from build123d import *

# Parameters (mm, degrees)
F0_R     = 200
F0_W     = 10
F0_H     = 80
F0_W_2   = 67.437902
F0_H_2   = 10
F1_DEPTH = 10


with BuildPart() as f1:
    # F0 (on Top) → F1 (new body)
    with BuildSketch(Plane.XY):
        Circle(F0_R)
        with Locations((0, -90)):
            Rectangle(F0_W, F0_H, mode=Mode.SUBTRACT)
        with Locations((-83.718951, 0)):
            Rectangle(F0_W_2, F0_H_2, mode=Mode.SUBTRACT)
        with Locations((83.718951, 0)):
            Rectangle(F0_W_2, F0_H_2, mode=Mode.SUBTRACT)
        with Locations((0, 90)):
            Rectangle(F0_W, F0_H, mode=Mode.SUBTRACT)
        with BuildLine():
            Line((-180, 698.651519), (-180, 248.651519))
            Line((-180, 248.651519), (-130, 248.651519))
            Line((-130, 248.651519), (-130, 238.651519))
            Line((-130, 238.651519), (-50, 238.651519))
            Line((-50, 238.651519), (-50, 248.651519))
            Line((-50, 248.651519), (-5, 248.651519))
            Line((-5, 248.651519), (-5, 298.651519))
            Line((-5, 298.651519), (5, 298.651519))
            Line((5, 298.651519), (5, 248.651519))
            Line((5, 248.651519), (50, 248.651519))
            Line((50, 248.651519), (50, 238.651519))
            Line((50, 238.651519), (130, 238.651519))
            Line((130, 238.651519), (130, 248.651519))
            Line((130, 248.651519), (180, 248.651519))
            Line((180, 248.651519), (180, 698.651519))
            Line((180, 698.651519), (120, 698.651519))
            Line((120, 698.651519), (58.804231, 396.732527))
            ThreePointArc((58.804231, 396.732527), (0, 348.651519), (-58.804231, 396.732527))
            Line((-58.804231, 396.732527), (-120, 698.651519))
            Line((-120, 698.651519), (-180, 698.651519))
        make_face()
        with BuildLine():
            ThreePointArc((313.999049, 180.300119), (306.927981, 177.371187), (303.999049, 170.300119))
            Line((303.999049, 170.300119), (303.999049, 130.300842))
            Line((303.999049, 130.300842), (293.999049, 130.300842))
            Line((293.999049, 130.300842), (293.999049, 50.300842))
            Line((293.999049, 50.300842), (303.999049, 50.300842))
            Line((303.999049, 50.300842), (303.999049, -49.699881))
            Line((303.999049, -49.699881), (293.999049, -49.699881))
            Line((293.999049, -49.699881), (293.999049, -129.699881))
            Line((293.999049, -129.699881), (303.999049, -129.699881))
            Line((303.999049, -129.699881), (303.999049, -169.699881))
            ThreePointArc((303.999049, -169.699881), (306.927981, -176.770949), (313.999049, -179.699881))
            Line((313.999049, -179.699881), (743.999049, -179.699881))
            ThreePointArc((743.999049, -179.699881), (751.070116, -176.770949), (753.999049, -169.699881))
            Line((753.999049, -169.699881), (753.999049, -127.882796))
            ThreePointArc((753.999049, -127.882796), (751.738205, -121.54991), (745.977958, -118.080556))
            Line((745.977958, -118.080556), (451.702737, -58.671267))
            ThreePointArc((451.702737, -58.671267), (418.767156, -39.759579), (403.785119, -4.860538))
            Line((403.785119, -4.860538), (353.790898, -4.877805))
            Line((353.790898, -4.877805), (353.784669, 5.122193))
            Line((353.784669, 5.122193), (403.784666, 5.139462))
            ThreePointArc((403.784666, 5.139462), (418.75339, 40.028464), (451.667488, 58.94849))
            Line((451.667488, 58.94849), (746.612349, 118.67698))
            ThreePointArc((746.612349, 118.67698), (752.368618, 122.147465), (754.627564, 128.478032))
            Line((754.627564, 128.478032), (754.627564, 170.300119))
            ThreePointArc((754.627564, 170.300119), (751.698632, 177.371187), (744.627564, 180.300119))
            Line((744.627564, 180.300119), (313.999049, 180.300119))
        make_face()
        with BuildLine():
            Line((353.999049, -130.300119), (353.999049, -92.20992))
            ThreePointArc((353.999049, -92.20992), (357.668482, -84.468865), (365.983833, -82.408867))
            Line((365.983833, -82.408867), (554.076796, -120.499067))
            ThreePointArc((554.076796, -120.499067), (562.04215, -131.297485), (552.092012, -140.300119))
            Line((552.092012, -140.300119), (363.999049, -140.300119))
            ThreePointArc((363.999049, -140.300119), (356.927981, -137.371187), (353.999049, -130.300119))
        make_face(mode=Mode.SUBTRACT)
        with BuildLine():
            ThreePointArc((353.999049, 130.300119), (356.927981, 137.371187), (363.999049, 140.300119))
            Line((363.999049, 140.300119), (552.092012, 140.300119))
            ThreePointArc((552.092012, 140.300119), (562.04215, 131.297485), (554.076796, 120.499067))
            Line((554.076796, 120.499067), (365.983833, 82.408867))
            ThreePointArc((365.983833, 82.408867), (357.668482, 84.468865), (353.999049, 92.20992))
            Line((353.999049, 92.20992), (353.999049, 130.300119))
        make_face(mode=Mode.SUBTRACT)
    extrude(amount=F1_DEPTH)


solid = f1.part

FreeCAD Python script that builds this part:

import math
import FreeCAD as App
import Part
import Sketcher

V = App.Vector
Q = App.Units.Quantity


def add_polygon(sketch, points):
    """Adds a closed chain of lines whose ends are joined by coincident constraints."""
    first, n = sketch.GeometryCount, len(points)
    for a, b in zip(points, points[1:] + points[:1]):
        sketch.addGeometry(Part.LineSegment(App.Vector(*a, 0), App.Vector(*b, 0)), False)
    for i in range(n):
        sketch.addConstraint(Sketcher.Constraint("Coincident", first + i, 2, first + (i + 1) % n, 1))

doc = App.newDocument("Part")
body = doc.addObject("PartDesign::Body", "Body")
body.AllowCompound = True

# Sketch on XY plane
sketch1 = body.newObject("Sketcher::SketchObject", "Sketch")
sketch1.AttachmentSupport = (doc.getObject("XY_Plane"), [""])
sketch1.MapMode = "FlatFace"
sketch1.addGeometry(Part.Circle(V(0, 0, 0), V(0, 0, 1), 200), False)  # 0
add_polygon(sketch1, [(5, -130), (-5, -130), (-5, -50), (5, -50)])  # lines 1-4
add_polygon(sketch1, [(-50, -5), (-117, -5), (-117, 5), (-50, 5)])  # lines 5-8
add_polygon(sketch1, [(117, -5), (50, -5), (50, 5), (117, 5)])  # lines 9-12
add_polygon(sketch1, [(5, 50), (-5, 50), (-5, 130), (5, 130)])  # lines 13-16
sketch1.addGeometry(Part.LineSegment(V(-180, 699, 0), V(-180, 249, 0)), False)  # 17
sketch1.addGeometry(Part.LineSegment(V(-180, 249, 0), V(-130, 249, 0)), False)  # 18
sketch1.addGeometry(Part.LineSegment(V(-130, 249, 0), V(-130, 239, 0)), False)  # 19
sketch1.addGeometry(Part.LineSegment(V(-130, 239, 0), V(-50, 239, 0)), False)  # 20
sketch1.addGeometry(Part.LineSegment(V(-50, 239, 0), V(-50, 249, 0)), False)  # 21
sketch1.addGeometry(Part.LineSegment(V(-50, 249, 0), V(-5, 249, 0)), False)  # 22
sketch1.addGeometry(Part.LineSegment(V(-5, 249, 0), V(-5, 299, 0)), False)  # 23
sketch1.addGeometry(Part.LineSegment(V(-5, 299, 0), V(5, 299, 0)), False)  # 24
sketch1.addGeometry(Part.LineSegment(V(5, 299, 0), V(5, 249, 0)), False)  # 25
sketch1.addGeometry(Part.LineSegment(V(5, 249, 0), V(50, 249, 0)), False)  # 26
sketch1.addGeometry(Part.LineSegment(V(50, 249, 0), V(50, 239, 0)), False)  # 27
sketch1.addGeometry(Part.LineSegment(V(50, 239, 0), V(130, 239, 0)), False)  # 28
sketch1.addGeometry(Part.LineSegment(V(130, 239, 0), V(130, 249, 0)), False)  # 29
sketch1.addGeometry(Part.LineSegment(V(130, 249, 0), V(180, 249, 0)), False)  # 30
sketch1.addGeometry(Part.LineSegment(V(180, 249, 0), V(180, 699, 0)), False)  # 31
sketch1.addGeometry(Part.LineSegment(V(180, 699, 0), V(120, 699, 0)), False)  # 32
sketch1.addGeometry(Part.LineSegment(V(120, 699, 0), V(59, 397, 0)), False)  # 33
sketch1.addGeometry(Part.ArcOfCircle(Part.Circle(V(0, 409, 0), V(0, 0, 1), 60), math.radians(-169), math.radians(-11)), False)  # 34
sketch1.addGeometry(Part.LineSegment(V(-59, 397, 0), V(-120, 699, 0)), False)  # 35
sketch1.addGeometry(Part.LineSegment(V(-120, 699, 0), V(-180, 699, 0)), False)  # 36
sketch1.addGeometry(Part.ArcOfCircle(Part.Circle(V(314, 170, 0), V(0, 0, 1), 10), math.radians(90), math.radians(180)), False)  # 37
sketch1.addGeometry(Part.LineSegment(V(304, 170, 0), V(304, 130, 0)), False)  # 38
sketch1.addGeometry(Part.LineSegment(V(304, 130, 0), V(294, 130, 0)), False)  # 39
sketch1.addGeometry(Part.LineSegment(V(294, 130, 0), V(294, 50, 0)), False)  # 40
sketch1.addGeometry(Part.LineSegment(V(294, 50, 0), V(304, 50, 0)), False)  # 41
sketch1.addGeometry(Part.LineSegment(V(304, 50, 0), V(304, -50, 0)), False)  # 42
sketch1.addGeometry(Part.LineSegment(V(304, -50, 0), V(294, -50, 0)), False)  # 43
sketch1.addGeometry(Part.LineSegment(V(294, -50, 0), V(294, -130, 0)), False)  # 44
sketch1.addGeometry(Part.LineSegment(V(294, -130, 0), V(304, -130, 0)), False)  # 45
sketch1.addGeometry(Part.LineSegment(V(304, -130, 0), V(304, -170, 0)), False)  # 46
sketch1.addGeometry(Part.ArcOfCircle(Part.Circle(V(314, -170, 0), V(0, 0, 1), 10), math.radians(180), math.radians(270)), False)  # 47
sketch1.addGeometry(Part.LineSegment(V(314, -180, 0), V(744, -180, 0)), False)  # 48
sketch1.addGeometry(Part.ArcOfCircle(Part.Circle(V(744, -170, 0), V(0, 0, 1), 10), math.radians(-90), math.radians(0)), False)  # 49
sketch1.addGeometry(Part.LineSegment(V(754, -170, 0), V(754, -128, 0)), False)  # 50
sketch1.addGeometry(Part.ArcOfCircle(Part.Circle(V(744, -128, 0), V(0, 0, 1), 10), math.radians(0), math.radians(79)), False)  # 51
sketch1.addGeometry(Part.LineSegment(V(746, -118, 0), V(452, -59, 0)), False)  # 52
sketch1.addGeometry(Part.ArcOfCircle(Part.Circle(V(464, 0, 0), V(0, 0, 1), 60), math.radians(-175), math.radians(-101)), False)  # 53
sketch1.addGeometry(Part.LineSegment(V(404, -5, 0), V(354, -5, 0)), False)  # 54
sketch1.addGeometry(Part.LineSegment(V(354, -5, 0), V(354, 5, 0)), False)  # 55
sketch1.addGeometry(Part.LineSegment(V(354, 5, 0), V(404, 5, 0)), False)  # 56
sketch1.addGeometry(Part.ArcOfCircle(Part.Circle(V(464, 0, 0), V(0, 0, 1), 60), math.radians(101), math.radians(175)), False)  # 57
sketch1.addGeometry(Part.LineSegment(V(452, 59, 0), V(747, 119, 0)), False)  # 58
sketch1.addGeometry(Part.ArcOfCircle(Part.Circle(V(745, 128, 0), V(0, 0, 1), 10), math.radians(-79), math.radians(0)), False)  # 59
sketch1.addGeometry(Part.LineSegment(V(755, 128, 0), V(755, 170, 0)), False)  # 60
sketch1.addGeometry(Part.ArcOfCircle(Part.Circle(V(745, 170, 0), V(0, 0, 1), 10), math.radians(0), math.radians(90)), False)  # 61
sketch1.addGeometry(Part.LineSegment(V(745, 180, 0), V(314, 180, 0)), False)  # 62
sketch1.addGeometry(Part.ArcOfCircle(Part.Circle(V(364, -130, 0), V(0, 0, 1), 10), math.radians(180), math.radians(270)), False)  # 63
sketch1.addGeometry(Part.LineSegment(V(354, -130, 0), V(354, -92, 0)), False)  # 64
sketch1.addGeometry(Part.ArcOfCircle(Part.Circle(V(364, -92, 0), V(0, 0, 1), 10), math.radians(79), math.radians(180)), False)  # 65
sketch1.addGeometry(Part.LineSegment(V(366, -82, 0), V(554, -120, 0)), False)  # 66
sketch1.addGeometry(Part.ArcOfCircle(Part.Circle(V(552, -130, 0), V(0, 0, 1), 10), math.radians(-90), math.radians(79)), False)  # 67
sketch1.addGeometry(Part.LineSegment(V(552, -140, 0), V(364, -140, 0)), False)  # 68
sketch1.addGeometry(Part.LineSegment(V(354, 92, 0), V(354, 130, 0)), False)  # 69
sketch1.addGeometry(Part.ArcOfCircle(Part.Circle(V(364, 130, 0), V(0, 0, 1), 10), math.radians(90), math.radians(180)), False)  # 70
sketch1.addGeometry(Part.LineSegment(V(364, 140, 0), V(552, 140, 0)), False)  # 71
sketch1.addGeometry(Part.ArcOfCircle(Part.Circle(V(552, 130, 0), V(0, 0, 1), 10), math.radians(-79), math.radians(90)), False)  # 72
sketch1.addGeometry(Part.LineSegment(V(554, 120, 0), V(366, 82, 0)), False)  # 73
sketch1.addGeometry(Part.ArcOfCircle(Part.Circle(V(364, 92, 0), V(0, 0, 1), 10), math.radians(180), math.radians(281)), False)  # 74
sketch1.addConstraint(Sketcher.Constraint("Coincident", 17, 2, 18, 1))
sketch1.addConstraint(Sketcher.Constraint("Coincident", 18, 2, 19, 1))
sketch1.addConstraint(Sketcher.Constraint("Coincident", 19, 2, 20, 1))
sketch1.addConstraint(Sketcher.Constraint("Coincident", 20, 2, 21, 1))
sketch1.addConstraint(Sketcher.Constraint("Coincident", 21, 2, 22, 1))
sketch1.addConstraint(Sketcher.Constraint("Coincident", 22, 2, 23, 1))
sketch1.addConstraint(Sketcher.Constraint("Coincident", 23, 2, 24, 1))
sketch1.addConstraint(Sketcher.Constraint("Coincident", 24, 2, 25, 1))
sketch1.addConstraint(Sketcher.Constraint("Coincident", 25, 2, 26, 1))
sketch1.addConstraint(Sketcher.Constraint("Coincident", 26, 2, 27, 1))
sketch1.addConstraint(Sketcher.Constraint("Coincident", 27, 2, 28, 1))
sketch1.addConstraint(Sketcher.Constraint("Coincident", 28, 2, 29, 1))
sketch1.addConstraint(Sketcher.Constraint("Coincident", 29, 2, 30, 1))
sketch1.addConstraint(Sketcher.Constraint("Coincident", 30, 2, 31, 1))
sketch1.addConstraint(Sketcher.Constraint("Coincident", 31, 2, 32, 1))
sketch1.addConstraint(Sketcher.Constraint("Coincident", 32, 2, 33, 1))
sketch1.addConstraint(Sketcher.Constraint("Tangent", 33, 2, 34, 2))
sketch1.addConstraint(Sketcher.Constraint("Tangent", 34, 1, 35, 1))
sketch1.addConstraint(Sketcher.Constraint("Coincident", 35, 2, 36, 1))
sketch1.addConstraint(Sketcher.Constraint("Coincident", 36, 2, 17, 1))
sketch1.addConstraint(Sketcher.Constraint("Tangent", 37, 2, 38, 1))
sketch1.addConstraint(Sketcher.Constraint("Coincident", 38, 2, 39, 1))
sketch1.addConstraint(Sketcher.Constraint("Coincident", 39, 2, 40, 1))
sketch1.addConstraint(Sketcher.Constraint("Coincident", 40, 2, 41, 1))
sketch1.addConstraint(Sketcher.Constraint("Coincident", 41, 2, 42, 1))
sketch1.addConstraint(Sketcher.Constraint("Coincident", 42, 2, 43, 1))
sketch1.addConstraint(Sketcher.Constraint("Coincident", 43, 2, 44, 1))
sketch1.addConstraint(Sketcher.Constraint("Coincident", 44, 2, 45, 1))
sketch1.addConstraint(Sketcher.Constraint("Coincident", 45, 2, 46, 1))
sketch1.addConstraint(Sketcher.Constraint("Tangent", 46, 2, 47, 1))
sketch1.addConstraint(Sketcher.Constraint("Tangent", 47, 2, 48, 1))
sketch1.addConstraint(Sketcher.Constraint("Tangent", 48, 2, 49, 1))
sketch1.addConstraint(Sketcher.Constraint("Tangent", 49, 2, 50, 1))
sketch1.addConstraint(Sketcher.Constraint("Tangent", 50, 2, 51, 1))
sketch1.addConstraint(Sketcher.Constraint("Tangent", 51, 2, 52, 1))
sketch1.addConstraint(Sketcher.Constraint("Tangent", 52, 2, 53, 2))
sketch1.addConstraint(Sketcher.Constraint("Coincident", 53, 1, 54, 1))
sketch1.addConstraint(Sketcher.Constraint("Coincident", 54, 2, 55, 1))
sketch1.addConstraint(Sketcher.Constraint("Coincident", 55, 2, 56, 1))
sketch1.addConstraint(Sketcher.Constraint("Coincident", 56, 2, 57, 2))
sketch1.addConstraint(Sketcher.Constraint("Tangent", 57, 1, 58, 1))
sketch1.addConstraint(Sketcher.Constraint("Tangent", 58, 2, 59, 1))
sketch1.addConstraint(Sketcher.Constraint("Tangent", 59, 2, 60, 1))
sketch1.addConstraint(Sketcher.Constraint("Tangent", 60, 2, 61, 1))
sketch1.addConstraint(Sketcher.Constraint("Tangent", 61, 2, 62, 1))
sketch1.addConstraint(Sketcher.Constraint("Tangent", 62, 2, 37, 1))
sketch1.addConstraint(Sketcher.Constraint("Tangent", 63, 1, 64, 1))
sketch1.addConstraint(Sketcher.Constraint("Tangent", 64, 2, 65, 2))
sketch1.addConstraint(Sketcher.Constraint("Tangent", 65, 1, 66, 1))
sketch1.addConstraint(Sketcher.Constraint("Tangent", 66, 2, 67, 2))
sketch1.addConstraint(Sketcher.Constraint("Tangent", 67, 1, 68, 1))
sketch1.addConstraint(Sketcher.Constraint("Tangent", 68, 2, 63, 2))
sketch1.addConstraint(Sketcher.Constraint("Tangent", 69, 2, 70, 2))
sketch1.addConstraint(Sketcher.Constraint("Tangent", 70, 1, 71, 1))
sketch1.addConstraint(Sketcher.Constraint("Tangent", 71, 2, 72, 2))
sketch1.addConstraint(Sketcher.Constraint("Tangent", 72, 1, 73, 1))
sketch1.addConstraint(Sketcher.Constraint("Tangent", 73, 2, 74, 2))
sketch1.addConstraint(Sketcher.Constraint("Tangent", 74, 1, 69, 1))
sketch1.addConstraint(Sketcher.Constraint("Horizontal", 1))
sketch1.addConstraint(Sketcher.Constraint("Vertical", 2))
sketch1.addConstraint(Sketcher.Constraint("Horizontal", 3))
sketch1.addConstraint(Sketcher.Constraint("Vertical", 4))
sketch1.addConstraint(Sketcher.Constraint("Horizontal", 5))
sketch1.addConstraint(Sketcher.Constraint("Vertical", 6))
sketch1.addConstraint(Sketcher.Constraint("Horizontal", 7))
sketch1.addConstraint(Sketcher.Constraint("Vertical", 8))
sketch1.addConstraint(Sketcher.Constraint("Horizontal", 9))
sketch1.addConstraint(Sketcher.Constraint("Vertical", 10))
sketch1.addConstraint(Sketcher.Constraint("Horizontal", 11))
sketch1.addConstraint(Sketcher.Constraint("Vertical", 12))
sketch1.addConstraint(Sketcher.Constraint("Horizontal", 13))
sketch1.addConstraint(Sketcher.Constraint("Vertical", 14))
sketch1.addConstraint(Sketcher.Constraint("Horizontal", 15))
sketch1.addConstraint(Sketcher.Constraint("Vertical", 16))
sketch1.addConstraint(Sketcher.Constraint("Vertical", 17))
sketch1.addConstraint(Sketcher.Constraint("Horizontal", 18))
sketch1.addConstraint(Sketcher.Constraint("Vertical", 19))
sketch1.addConstraint(Sketcher.Constraint("Horizontal", 20))
sketch1.addConstraint(Sketcher.Constraint("Vertical", 21))
sketch1.addConstraint(Sketcher.Constraint("Horizontal", 22))
sketch1.addConstraint(Sketcher.Constraint("Vertical", 23))
sketch1.addConstraint(Sketcher.Constraint("Horizontal", 24))
sketch1.addConstraint(Sketcher.Constraint("Vertical", 25))
sketch1.addConstraint(Sketcher.Constraint("Horizontal", 26))
sketch1.addConstraint(Sketcher.Constraint("Vertical", 27))
sketch1.addConstraint(Sketcher.Constraint("Horizontal", 28))
sketch1.addConstraint(Sketcher.Constraint("Vertical", 29))
sketch1.addConstraint(Sketcher.Constraint("Horizontal", 30))
sketch1.addConstraint(Sketcher.Constraint("Vertical", 31))
sketch1.addConstraint(Sketcher.Constraint("Horizontal", 32))
sketch1.addConstraint(Sketcher.Constraint("Horizontal", 36))
sketch1.addConstraint(Sketcher.Constraint("Vertical", 38))
sketch1.addConstraint(Sketcher.Constraint("Horizontal", 39))
sketch1.addConstraint(Sketcher.Constraint("Vertical", 40))
sketch1.addConstraint(Sketcher.Constraint("Horizontal", 41))
sketch1.addConstraint(Sketcher.Constraint("Vertical", 42))
sketch1.addConstraint(Sketcher.Constraint("Horizontal", 43))
sketch1.addConstraint(Sketcher.Constraint("Vertical", 44))
sketch1.addConstraint(Sketcher.Constraint("Horizontal", 45))
sketch1.addConstraint(Sketcher.Constraint("Vertical", 46))
sketch1.addConstraint(Sketcher.Constraint("Horizontal", 48))
sketch1.addConstraint(Sketcher.Constraint("Vertical", 50))
sketch1.addConstraint(Sketcher.Constraint("Vertical", 60))
sketch1.addConstraint(Sketcher.Constraint("Horizontal", 62))
sketch1.addConstraint(Sketcher.Constraint("Vertical", 64))
sketch1.addConstraint(Sketcher.Constraint("Horizontal", 68))
sketch1.addConstraint(Sketcher.Constraint("Vertical", 69))
sketch1.addConstraint(Sketcher.Constraint("Horizontal", 71))
sketch1.addConstraint(Sketcher.Constraint("Coincident", 0, 3, -1, 1))
sketch1.addConstraint(Sketcher.Constraint("Coincident", 57, 3, 53, 3))
sketch1.addConstraint(Sketcher.Constraint("Equal", 37, 47))
sketch1.addConstraint(Sketcher.Constraint("Equal", 47, 49))
sketch1.addConstraint(Sketcher.Constraint("Equal", 49, 51))
sketch1.addConstraint(Sketcher.Constraint("Equal", 34, 53))
sketch1.addConstraint(Sketcher.Constraint("Equal", 53, 57))
sketch1.addConstraint(Sketcher.Constraint("Equal", 49, 59))
sketch1.addConstraint(Sketcher.Constraint("Equal", 59, 61))
sketch1.addConstraint(Sketcher.Constraint("Equal", 61, 63))
sketch1.addConstraint(Sketcher.Constraint("Equal", 63, 65))
sketch1.addConstraint(Sketcher.Constraint("Equal", 65, 67))
sketch1.addConstraint(Sketcher.Constraint("Equal", 67, 70))
sketch1.addConstraint(Sketcher.Constraint("Equal", 70, 72))
sketch1.addConstraint(Sketcher.Constraint("Equal", 72, 74))
sketch1.addConstraint(Sketcher.Constraint("Symmetric", 7, 2, 9, 2, -1, 1))
sketch1.addConstraint(Sketcher.Constraint("Symmetric", 5, 2, 11, 2, -1, 1))
sketch1.addConstraint(Sketcher.Constraint("Symmetric", 3, 2, 13, 2, -1, 1))
sketch1.addConstraint(Sketcher.Constraint("Symmetric", 1, 2, 15, 2, -1, 1))
sketch1.addConstraint(Sketcher.Constraint("Symmetric", 22, 2, 25, 2, -2))
sketch1.addConstraint(Sketcher.Constraint("Symmetric", 20, 2, 27, 2, -2))
sketch1.addConstraint(Sketcher.Constraint("Symmetric", 18, 2, 29, 2, -2))
sketch1.addConstraint(Sketcher.Constraint("Symmetric", 33, 2, 34, 1, -2))
sketch1.addConstraint(Sketcher.Constraint("Symmetric", 31, 2, 36, 2, -2))
sketch1.addConstraint(Sketcher.Constraint("Symmetric", 63, 3, 70, 3, -1))
sketch1.addConstraint(Sketcher.Constraint("Symmetric", 66, 2, 72, 1, -1))
sketch1.addConstraint(Sketcher.Constraint("Parallel", 54, 56))
sketch1.addConstraint(Sketcher.Constraint("Parallel", 58, 73))
sketch1.addConstraint(Sketcher.Constraint("Horizontal", 8, 2, 9, 2))
sketch1.addConstraint(Sketcher.Constraint("Horizontal", 18, 2, 21, 2))
sketch1.addConstraint(Sketcher.Constraint("Vertical", 37, 3, 47, 3))
sketch1.addConstraint(Sketcher.Constraint("Vertical", 2, 2, 13, 2))
sketch1.addConstraint(Sketcher.Constraint("Vertical", 8, 2, 20, 2))
sketch1.addConstraint(Sketcher.Constraint("Vertical", 14, 2, 22, 2))
sketch1.addConstraint(Sketcher.Constraint("Vertical", 38, 2, 41, 2))
sketch1.addConstraint(Sketcher.Constraint("Vertical", 40, 2, 43, 2))
sketch1.addConstraint(Sketcher.Constraint("Equal", 24, 39))
sketch1.addConstraint(Sketcher.Constraint("Equal", 28, 2))
sketch1.addConstraint(Sketcher.Constraint("Equal", 45, 6))
sketch1.addConstraint(Sketcher.Constraint("Equal", 12, 19))
sketch1.addConstraint(Sketcher.Constraint("Equal", 30, 23))
sketch1.addConstraint(Sketcher.Constraint("Equal", 16, 40))
sketch1.addConstraint(Sketcher.Constraint("Equal", 40, 44))
sketch1.addConstraint(Sketcher.Constraint("Diameter", 0, Q("400 mm")))
sketch1.addConstraint(Sketcher.Constraint("Radius", 34, Q("60 mm")))
sketch1.addConstraint(Sketcher.Constraint("Radius", 37, Q("9.999999 mm")))
sketch1.addConstraint(Sketcher.Constraint("DistanceX", 1, 2, 1, 1, Q("10 mm")))
sketch1.addConstraint(Sketcher.Constraint("DistanceX", 18, 1, 18, 2, Q("50 mm")))
sketch1.addConstraint(Sketcher.Constraint("DistanceX", 20, 1, 20, 2, Q("80 mm")))
sketch1.addConstraint(Sketcher.Constraint("DistanceX", 22, 1, 22, 2, Q("45 mm")))
sketch1.addConstraint(Sketcher.Constraint("DistanceX", 32, 2, 32, 1, Q("60 mm")))
sketch1.addConstraint(Sketcher.Constraint("DistanceX", 48, 1, 48, 2, Q("430 mm")))
sketch1.addConstraint(Sketcher.Constraint("DistanceY", 17, 2, 17, 1, Q("450 mm")))
sketch1.addConstraint(Sketcher.Constraint("DistanceY", 46, 2, 46, 1, Q("40 mm")))
sketch1.addConstraint(Sketcher.Constraint("Distance", 55, Q("10 mm")))
sketch1.addConstraint(Sketcher.Constraint("Distance", 56, Q("50 mm")))
sketch1.addConstraint(Sketcher.Constraint("DistanceY", 1, 2, -1, 1, Q("130 mm")))
sketch1.addConstraint(Sketcher.Constraint("DistanceX", 5, 2, 5, 1, Q("67.437902 mm")))
sketch1.addConstraint(Sketcher.Constraint("DistanceY", 64, 1, 64, 2, Q("38.090199 mm")))
sketch1.addConstraint(Sketcher.Constraint("DistanceY", 51, 3, -1, 1, Q("127.882798 mm")))
sketch1.addConstraint(Sketcher.Constraint("DistanceX", -1, 1, 54, 2, Q("353.790898 mm")))
sketch1.addConstraint(Sketcher.Constraint("DistanceX", 62, 2, 62, 1, Q("430.628515 mm")))
sketch1.addConstraint(Sketcher.Constraint("DistanceX", 68, 2, 68, 1, Q("188.092963 mm")))
sketch1.addConstraint(Sketcher.Constraint("DistanceY", 38, 2, 38, 1, Q("39.999277 mm")))
sketch1.addConstraint(Sketcher.Constraint("DistanceY", 42, 2, 42, 1, Q("100.000723 mm")))
sketch1.addConstraint(Sketcher.Constraint("DistanceY", 50, 1, 50, 2, Q("41.817085 mm")))
sketch1.addConstraint(Sketcher.Constraint("DistanceY", 60, 1, 60, 2, Q("41.822087 mm")))
sketch1.addConstraint(Sketcher.Constraint("DistanceY", -1, 1, 34, 3, Q("408.651519 mm")))
sketch1.addConstraint(Sketcher.Constraint("DistanceX", -1, 1, 37, 3, Q("313.999048 mm")))
sketch1.addConstraint(Sketcher.Constraint("DistanceX", -1, 1, 63, 3, Q("363.999048 mm")))
sketch1.addConstraint(Sketcher.Constraint("DistanceY", 63, 3, -1, 1, Q("130.30012 mm")))
sketch1.addConstraint(Sketcher.Constraint("DistanceY", -1, 1, 17, 2, Q("248.651519 mm")))
sketch1.addConstraint(Sketcher.Constraint("DistanceX", -1, 1, 53, 1, Q("403.785119 mm")))
sketch1.addConstraint(Sketcher.Constraint("DistanceY", 53, 1, -1, 1, Q("4.860538 mm")))
sketch1.addConstraint(Sketcher.Constraint("DistanceY", 54, 2, -1, 1, Q("4.877805 mm")))
pad1 = body.newObject("PartDesign::Pad", "Pad")
pad1.Profile = sketch1
pad1.Length = 10

doc.recompute()
